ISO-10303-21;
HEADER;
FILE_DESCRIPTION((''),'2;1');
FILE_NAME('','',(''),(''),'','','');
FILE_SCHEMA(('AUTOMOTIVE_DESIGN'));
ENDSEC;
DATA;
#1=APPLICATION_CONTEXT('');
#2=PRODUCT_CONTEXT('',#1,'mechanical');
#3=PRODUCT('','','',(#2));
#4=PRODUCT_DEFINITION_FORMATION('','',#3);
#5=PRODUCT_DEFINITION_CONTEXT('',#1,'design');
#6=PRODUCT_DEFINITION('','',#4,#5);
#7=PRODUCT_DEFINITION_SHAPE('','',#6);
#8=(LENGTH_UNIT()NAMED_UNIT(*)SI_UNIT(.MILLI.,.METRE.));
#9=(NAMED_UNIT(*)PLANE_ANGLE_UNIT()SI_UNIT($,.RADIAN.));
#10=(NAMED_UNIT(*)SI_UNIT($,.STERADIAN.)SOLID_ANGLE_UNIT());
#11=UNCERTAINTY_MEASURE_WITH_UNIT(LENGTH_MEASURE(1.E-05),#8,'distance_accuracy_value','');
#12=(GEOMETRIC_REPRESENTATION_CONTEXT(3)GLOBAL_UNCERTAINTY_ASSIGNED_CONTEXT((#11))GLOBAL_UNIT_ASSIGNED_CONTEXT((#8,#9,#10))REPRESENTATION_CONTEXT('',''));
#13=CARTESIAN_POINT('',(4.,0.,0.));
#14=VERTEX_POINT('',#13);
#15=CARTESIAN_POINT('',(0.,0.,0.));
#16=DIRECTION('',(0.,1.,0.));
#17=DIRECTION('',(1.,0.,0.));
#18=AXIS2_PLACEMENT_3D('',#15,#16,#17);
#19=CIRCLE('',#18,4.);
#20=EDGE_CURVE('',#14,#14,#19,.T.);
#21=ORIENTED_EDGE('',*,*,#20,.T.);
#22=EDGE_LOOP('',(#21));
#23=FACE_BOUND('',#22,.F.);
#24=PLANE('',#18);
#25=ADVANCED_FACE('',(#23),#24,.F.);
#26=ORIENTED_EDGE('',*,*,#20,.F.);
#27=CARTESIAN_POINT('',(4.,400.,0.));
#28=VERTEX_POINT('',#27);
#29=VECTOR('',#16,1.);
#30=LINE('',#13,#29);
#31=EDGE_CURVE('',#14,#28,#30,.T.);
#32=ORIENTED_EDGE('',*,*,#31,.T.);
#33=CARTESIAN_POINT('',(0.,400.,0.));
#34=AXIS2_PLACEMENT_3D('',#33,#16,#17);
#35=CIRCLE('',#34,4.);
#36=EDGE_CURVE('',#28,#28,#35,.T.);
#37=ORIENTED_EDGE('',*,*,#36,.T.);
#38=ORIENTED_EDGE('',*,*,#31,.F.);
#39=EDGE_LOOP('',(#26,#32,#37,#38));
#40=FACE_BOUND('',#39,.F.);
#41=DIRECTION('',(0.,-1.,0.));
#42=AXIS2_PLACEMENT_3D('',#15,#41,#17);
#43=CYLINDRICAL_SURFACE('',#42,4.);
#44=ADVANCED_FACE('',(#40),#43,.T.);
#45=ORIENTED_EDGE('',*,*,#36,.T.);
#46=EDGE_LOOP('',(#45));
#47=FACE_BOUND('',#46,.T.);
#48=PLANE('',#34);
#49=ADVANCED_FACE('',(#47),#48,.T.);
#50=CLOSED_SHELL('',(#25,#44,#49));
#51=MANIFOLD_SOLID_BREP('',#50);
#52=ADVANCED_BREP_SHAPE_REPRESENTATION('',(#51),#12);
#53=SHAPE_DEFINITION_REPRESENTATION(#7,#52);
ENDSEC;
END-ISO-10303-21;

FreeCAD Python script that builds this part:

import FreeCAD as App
import Part
import Sketcher
from FreeCAD import Vector
Q = App.Units.Quantity

doc = App.newDocument("Part")
params = doc.addObject("Spreadsheet::Sheet", "Params")
for row, (alias, value) in enumerate([
    ("sketch1_diameter", "8 mm"),
    ("pad1_length", "400 mm"),
], start=1):
    params.set(f"A{row}", alias)
    params.set(f"B{row}", "=" + value)
    params.setAlias(f"B{row}", alias)

body = doc.addObject("PartDesign::Body", "Body")

sketch1 = doc.addObject("Sketcher::SketchObject", "Sketch")
body.addObject(sketch1)
sketch1.AttachmentSupport = (doc.XZ_Plane, [""])
sketch1.MapMode = "FlatFace"
sketch1.addGeometry(Part.Circle(Vector(0, 0, 0), Vector(0, 0, 1), 4), False)
sketch1.addConstraint(Sketcher.Constraint("Coincident", 0, 3, -1, 1))
sketch1.addConstraint(Sketcher.Constraint("Diameter", 0, Q("8 mm")))
sketch1.setExpression("Constraints[1]", "Params.sketch1_diameter")
pad1 = doc.addObject("PartDesign::Pad", "Pad")
body.addObject(pad1)
pad1.Profile = sketch1
pad1.setExpression("Length", "Params.pad1_length")
pad1.Reversed = True

doc.recompute()
